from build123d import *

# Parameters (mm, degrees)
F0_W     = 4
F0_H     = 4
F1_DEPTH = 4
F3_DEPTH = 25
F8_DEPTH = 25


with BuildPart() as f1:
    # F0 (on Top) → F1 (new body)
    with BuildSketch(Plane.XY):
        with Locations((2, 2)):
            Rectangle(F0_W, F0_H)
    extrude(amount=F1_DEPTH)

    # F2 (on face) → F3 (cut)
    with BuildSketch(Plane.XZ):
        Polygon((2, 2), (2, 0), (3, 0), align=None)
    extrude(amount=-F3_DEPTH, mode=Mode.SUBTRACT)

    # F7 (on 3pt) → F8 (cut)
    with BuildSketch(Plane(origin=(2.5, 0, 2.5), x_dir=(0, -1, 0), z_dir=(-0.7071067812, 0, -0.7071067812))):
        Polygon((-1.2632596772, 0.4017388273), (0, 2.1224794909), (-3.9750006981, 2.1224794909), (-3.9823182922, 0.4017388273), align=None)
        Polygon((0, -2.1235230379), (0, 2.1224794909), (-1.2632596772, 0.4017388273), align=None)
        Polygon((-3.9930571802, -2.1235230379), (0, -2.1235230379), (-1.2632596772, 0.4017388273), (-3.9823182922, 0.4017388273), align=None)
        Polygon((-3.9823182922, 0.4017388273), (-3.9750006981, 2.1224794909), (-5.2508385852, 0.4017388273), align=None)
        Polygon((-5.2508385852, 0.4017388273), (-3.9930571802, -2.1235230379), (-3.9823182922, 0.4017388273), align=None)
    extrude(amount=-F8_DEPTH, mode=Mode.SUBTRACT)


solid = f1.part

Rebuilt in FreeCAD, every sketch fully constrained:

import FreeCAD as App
import Part
import Sketcher
Q = App.Units.Quantity

doc = App.newDocument("Part")
body = doc.addObject("PartDesign::Body", "Body")

# Sketch on XY plane
sketch1 = doc.addObject("Sketcher::SketchObject", "Sketch")
body.addObject(sketch1)
sketch1.AttachmentSupport = (doc.XY_Plane, [""])
sketch1.MapMode = "FlatFace"
sketch1.addGeometry([
    Part.LineSegment(App.Vector(0, 4, 0), App.Vector(0, 0, 0)),
    Part.LineSegment(App.Vector(0, 0, 0), App.Vector(4, 0, 0)),
    Part.LineSegment(App.Vector(4, 0, 0), App.Vector(4, 4, 0)),
    Part.LineSegment(App.Vector(4, 4, 0), App.Vector(0, 4, 0)),
], False)
sketch1.addConstraint([
    Sketcher.Constraint("Coincident", 0, 2, 1, 1),
    Sketcher.Constraint("Coincident", 1, 2, 2, 1),
    Sketcher.Constraint("Coincident", 2, 2, 3, 1),
    Sketcher.Constraint("Coincident", 3, 2, 0, 1),
    Sketcher.Constraint("Vertical", 0),
    Sketcher.Constraint("Horizontal", 1),
    Sketcher.Constraint("Vertical", 2),
    Sketcher.Constraint("Horizontal", 3),
    Sketcher.Constraint("Coincident", 0, 2, -1, 1),
    Sketcher.Constraint("Equal", 3, 0),
    Sketcher.Constraint("DistanceX", 1, 1, 1, 2, Q("4 mm")),
])
pad1 = doc.addObject("PartDesign::Pad", "Pad")
body.addObject(pad1)
pad1.Profile = sketch1
pad1.Length = 4

# Sketch on XZ plane
sketch2 = doc.addObject("Sketcher::SketchObject", "Sketch001")
body.addObject(sketch2)
sketch2.AttachmentSupport = (doc.XZ_Plane, [""])
sketch2.MapMode = "FlatFace"
sketch2.addGeometry([
    Part.LineSegment(App.Vector(2, 2, 0), App.Vector(2, 0, 0)),
    Part.LineSegment(App.Vector(2, 0, 0), App.Vector(3, 0, 0)),
    Part.LineSegment(App.Vector(3, 0, 0), App.Vector(2, 2, 0)),
], False)
sketch2.addConstraint([
    Sketcher.Constraint("Coincident", 0, 2, 1, 1),
    Sketcher.Constraint("Coincident", 1, 2, 2, 1),
    Sketcher.Constraint("Coincident", 2, 2, 0, 1),
    Sketcher.Constraint("Vertical", 0),
    Sketcher.Constraint("Horizontal", 1),
    Sketcher.Constraint("PointOnObject", 0, 2, -1),
    Sketcher.Constraint("DistanceX", 1, 1, 1, 2, Q("1 mm")),
    Sketcher.Constraint("DistanceY", 0, 2, 0, 1, Q("2 mm")),
    Sketcher.Constraint("DistanceX", -1, 1, 0, 2, Q("2 mm")),
])
pocket1 = doc.addObject("PartDesign::Pocket", "Pocket")
body.addObject(pocket1)
pocket1.Profile = sketch2
pocket1.Length = 25

# Sketch on an angled plane
sketch3 = doc.addObject("Sketcher::SketchObject", "Sketch002")
body.addObject(sketch3)
sketch3.Placement = App.Placement(App.Vector(2.5, 0, 2.5), App.Rotation(App.Vector(0, -1, 0), App.Vector(-0.707106781, 0, 0.707106781), App.Vector(-0.707106781, 0, -0.707106781), "ZXY"))
sketch3.addGeometry([
    Part.LineSegment(App.Vector(0, 2.1, 0), App.Vector(-4, 2.1, 0)),  # 0
    Part.LineSegment(App.Vector(-4, 2.1, 0), App.Vector(-5.3, 0.4, 0)),  # 1
    Part.LineSegment(App.Vector(-5.3, 0.4, 0), App.Vector(-4, -2.1, 0)),  # 2
    Part.LineSegment(App.Vector(-4, -2.1, 0), App.Vector(0, -2.1, 0)),  # 3
    Part.LineSegment(App.Vector(0, -2.1, 0), App.Vector(0, 2.1, 0)),  # 4
], False)
sketch3.addConstraint([
    Sketcher.Constraint("Coincident", 0, 2, 1, 1),
    Sketcher.Constraint("Coincident", 1, 2, 2, 1),
    Sketcher.Constraint("Coincident", 2, 2, 3, 1),
    Sketcher.Constraint("Coincident", 3, 2, 4, 1),
    Sketcher.Constraint("Coincident", 4, 2, 0, 1),
    Sketcher.Constraint("Horizontal", 0),
    Sketcher.Constraint("Horizontal", 3),
    Sketcher.Constraint("Vertical", 4),
    Sketcher.Constraint("PointOnObject", 3, 2, -2),
    Sketcher.Constraint("DistanceX", 0, 2, 0, 1, Q("3.975001 mm")),
    Sketcher.Constraint("DistanceX", 3, 1, 3, 2, Q("3.993057 mm")),
    Sketcher.Constraint("DistanceY", 4, 1, 4, 2, Q("4.246003 mm")),
    Sketcher.Constraint("DistanceY", -1, 1, 0, 2, Q("2.122479 mm")),
    Sketcher.Constraint("DistanceX", 1, 2, -1, 1, Q("5.250839 mm")),
    Sketcher.Constraint("DistanceY", -1, 1, 1, 2, Q("0.401739 mm")),
])
pocket2 = doc.addObject("PartDesign::Pocket", "Pocket001")
body.addObject(pocket2)
pocket2.Profile = sketch3
pocket2.Length = 25

doc.recompute()
